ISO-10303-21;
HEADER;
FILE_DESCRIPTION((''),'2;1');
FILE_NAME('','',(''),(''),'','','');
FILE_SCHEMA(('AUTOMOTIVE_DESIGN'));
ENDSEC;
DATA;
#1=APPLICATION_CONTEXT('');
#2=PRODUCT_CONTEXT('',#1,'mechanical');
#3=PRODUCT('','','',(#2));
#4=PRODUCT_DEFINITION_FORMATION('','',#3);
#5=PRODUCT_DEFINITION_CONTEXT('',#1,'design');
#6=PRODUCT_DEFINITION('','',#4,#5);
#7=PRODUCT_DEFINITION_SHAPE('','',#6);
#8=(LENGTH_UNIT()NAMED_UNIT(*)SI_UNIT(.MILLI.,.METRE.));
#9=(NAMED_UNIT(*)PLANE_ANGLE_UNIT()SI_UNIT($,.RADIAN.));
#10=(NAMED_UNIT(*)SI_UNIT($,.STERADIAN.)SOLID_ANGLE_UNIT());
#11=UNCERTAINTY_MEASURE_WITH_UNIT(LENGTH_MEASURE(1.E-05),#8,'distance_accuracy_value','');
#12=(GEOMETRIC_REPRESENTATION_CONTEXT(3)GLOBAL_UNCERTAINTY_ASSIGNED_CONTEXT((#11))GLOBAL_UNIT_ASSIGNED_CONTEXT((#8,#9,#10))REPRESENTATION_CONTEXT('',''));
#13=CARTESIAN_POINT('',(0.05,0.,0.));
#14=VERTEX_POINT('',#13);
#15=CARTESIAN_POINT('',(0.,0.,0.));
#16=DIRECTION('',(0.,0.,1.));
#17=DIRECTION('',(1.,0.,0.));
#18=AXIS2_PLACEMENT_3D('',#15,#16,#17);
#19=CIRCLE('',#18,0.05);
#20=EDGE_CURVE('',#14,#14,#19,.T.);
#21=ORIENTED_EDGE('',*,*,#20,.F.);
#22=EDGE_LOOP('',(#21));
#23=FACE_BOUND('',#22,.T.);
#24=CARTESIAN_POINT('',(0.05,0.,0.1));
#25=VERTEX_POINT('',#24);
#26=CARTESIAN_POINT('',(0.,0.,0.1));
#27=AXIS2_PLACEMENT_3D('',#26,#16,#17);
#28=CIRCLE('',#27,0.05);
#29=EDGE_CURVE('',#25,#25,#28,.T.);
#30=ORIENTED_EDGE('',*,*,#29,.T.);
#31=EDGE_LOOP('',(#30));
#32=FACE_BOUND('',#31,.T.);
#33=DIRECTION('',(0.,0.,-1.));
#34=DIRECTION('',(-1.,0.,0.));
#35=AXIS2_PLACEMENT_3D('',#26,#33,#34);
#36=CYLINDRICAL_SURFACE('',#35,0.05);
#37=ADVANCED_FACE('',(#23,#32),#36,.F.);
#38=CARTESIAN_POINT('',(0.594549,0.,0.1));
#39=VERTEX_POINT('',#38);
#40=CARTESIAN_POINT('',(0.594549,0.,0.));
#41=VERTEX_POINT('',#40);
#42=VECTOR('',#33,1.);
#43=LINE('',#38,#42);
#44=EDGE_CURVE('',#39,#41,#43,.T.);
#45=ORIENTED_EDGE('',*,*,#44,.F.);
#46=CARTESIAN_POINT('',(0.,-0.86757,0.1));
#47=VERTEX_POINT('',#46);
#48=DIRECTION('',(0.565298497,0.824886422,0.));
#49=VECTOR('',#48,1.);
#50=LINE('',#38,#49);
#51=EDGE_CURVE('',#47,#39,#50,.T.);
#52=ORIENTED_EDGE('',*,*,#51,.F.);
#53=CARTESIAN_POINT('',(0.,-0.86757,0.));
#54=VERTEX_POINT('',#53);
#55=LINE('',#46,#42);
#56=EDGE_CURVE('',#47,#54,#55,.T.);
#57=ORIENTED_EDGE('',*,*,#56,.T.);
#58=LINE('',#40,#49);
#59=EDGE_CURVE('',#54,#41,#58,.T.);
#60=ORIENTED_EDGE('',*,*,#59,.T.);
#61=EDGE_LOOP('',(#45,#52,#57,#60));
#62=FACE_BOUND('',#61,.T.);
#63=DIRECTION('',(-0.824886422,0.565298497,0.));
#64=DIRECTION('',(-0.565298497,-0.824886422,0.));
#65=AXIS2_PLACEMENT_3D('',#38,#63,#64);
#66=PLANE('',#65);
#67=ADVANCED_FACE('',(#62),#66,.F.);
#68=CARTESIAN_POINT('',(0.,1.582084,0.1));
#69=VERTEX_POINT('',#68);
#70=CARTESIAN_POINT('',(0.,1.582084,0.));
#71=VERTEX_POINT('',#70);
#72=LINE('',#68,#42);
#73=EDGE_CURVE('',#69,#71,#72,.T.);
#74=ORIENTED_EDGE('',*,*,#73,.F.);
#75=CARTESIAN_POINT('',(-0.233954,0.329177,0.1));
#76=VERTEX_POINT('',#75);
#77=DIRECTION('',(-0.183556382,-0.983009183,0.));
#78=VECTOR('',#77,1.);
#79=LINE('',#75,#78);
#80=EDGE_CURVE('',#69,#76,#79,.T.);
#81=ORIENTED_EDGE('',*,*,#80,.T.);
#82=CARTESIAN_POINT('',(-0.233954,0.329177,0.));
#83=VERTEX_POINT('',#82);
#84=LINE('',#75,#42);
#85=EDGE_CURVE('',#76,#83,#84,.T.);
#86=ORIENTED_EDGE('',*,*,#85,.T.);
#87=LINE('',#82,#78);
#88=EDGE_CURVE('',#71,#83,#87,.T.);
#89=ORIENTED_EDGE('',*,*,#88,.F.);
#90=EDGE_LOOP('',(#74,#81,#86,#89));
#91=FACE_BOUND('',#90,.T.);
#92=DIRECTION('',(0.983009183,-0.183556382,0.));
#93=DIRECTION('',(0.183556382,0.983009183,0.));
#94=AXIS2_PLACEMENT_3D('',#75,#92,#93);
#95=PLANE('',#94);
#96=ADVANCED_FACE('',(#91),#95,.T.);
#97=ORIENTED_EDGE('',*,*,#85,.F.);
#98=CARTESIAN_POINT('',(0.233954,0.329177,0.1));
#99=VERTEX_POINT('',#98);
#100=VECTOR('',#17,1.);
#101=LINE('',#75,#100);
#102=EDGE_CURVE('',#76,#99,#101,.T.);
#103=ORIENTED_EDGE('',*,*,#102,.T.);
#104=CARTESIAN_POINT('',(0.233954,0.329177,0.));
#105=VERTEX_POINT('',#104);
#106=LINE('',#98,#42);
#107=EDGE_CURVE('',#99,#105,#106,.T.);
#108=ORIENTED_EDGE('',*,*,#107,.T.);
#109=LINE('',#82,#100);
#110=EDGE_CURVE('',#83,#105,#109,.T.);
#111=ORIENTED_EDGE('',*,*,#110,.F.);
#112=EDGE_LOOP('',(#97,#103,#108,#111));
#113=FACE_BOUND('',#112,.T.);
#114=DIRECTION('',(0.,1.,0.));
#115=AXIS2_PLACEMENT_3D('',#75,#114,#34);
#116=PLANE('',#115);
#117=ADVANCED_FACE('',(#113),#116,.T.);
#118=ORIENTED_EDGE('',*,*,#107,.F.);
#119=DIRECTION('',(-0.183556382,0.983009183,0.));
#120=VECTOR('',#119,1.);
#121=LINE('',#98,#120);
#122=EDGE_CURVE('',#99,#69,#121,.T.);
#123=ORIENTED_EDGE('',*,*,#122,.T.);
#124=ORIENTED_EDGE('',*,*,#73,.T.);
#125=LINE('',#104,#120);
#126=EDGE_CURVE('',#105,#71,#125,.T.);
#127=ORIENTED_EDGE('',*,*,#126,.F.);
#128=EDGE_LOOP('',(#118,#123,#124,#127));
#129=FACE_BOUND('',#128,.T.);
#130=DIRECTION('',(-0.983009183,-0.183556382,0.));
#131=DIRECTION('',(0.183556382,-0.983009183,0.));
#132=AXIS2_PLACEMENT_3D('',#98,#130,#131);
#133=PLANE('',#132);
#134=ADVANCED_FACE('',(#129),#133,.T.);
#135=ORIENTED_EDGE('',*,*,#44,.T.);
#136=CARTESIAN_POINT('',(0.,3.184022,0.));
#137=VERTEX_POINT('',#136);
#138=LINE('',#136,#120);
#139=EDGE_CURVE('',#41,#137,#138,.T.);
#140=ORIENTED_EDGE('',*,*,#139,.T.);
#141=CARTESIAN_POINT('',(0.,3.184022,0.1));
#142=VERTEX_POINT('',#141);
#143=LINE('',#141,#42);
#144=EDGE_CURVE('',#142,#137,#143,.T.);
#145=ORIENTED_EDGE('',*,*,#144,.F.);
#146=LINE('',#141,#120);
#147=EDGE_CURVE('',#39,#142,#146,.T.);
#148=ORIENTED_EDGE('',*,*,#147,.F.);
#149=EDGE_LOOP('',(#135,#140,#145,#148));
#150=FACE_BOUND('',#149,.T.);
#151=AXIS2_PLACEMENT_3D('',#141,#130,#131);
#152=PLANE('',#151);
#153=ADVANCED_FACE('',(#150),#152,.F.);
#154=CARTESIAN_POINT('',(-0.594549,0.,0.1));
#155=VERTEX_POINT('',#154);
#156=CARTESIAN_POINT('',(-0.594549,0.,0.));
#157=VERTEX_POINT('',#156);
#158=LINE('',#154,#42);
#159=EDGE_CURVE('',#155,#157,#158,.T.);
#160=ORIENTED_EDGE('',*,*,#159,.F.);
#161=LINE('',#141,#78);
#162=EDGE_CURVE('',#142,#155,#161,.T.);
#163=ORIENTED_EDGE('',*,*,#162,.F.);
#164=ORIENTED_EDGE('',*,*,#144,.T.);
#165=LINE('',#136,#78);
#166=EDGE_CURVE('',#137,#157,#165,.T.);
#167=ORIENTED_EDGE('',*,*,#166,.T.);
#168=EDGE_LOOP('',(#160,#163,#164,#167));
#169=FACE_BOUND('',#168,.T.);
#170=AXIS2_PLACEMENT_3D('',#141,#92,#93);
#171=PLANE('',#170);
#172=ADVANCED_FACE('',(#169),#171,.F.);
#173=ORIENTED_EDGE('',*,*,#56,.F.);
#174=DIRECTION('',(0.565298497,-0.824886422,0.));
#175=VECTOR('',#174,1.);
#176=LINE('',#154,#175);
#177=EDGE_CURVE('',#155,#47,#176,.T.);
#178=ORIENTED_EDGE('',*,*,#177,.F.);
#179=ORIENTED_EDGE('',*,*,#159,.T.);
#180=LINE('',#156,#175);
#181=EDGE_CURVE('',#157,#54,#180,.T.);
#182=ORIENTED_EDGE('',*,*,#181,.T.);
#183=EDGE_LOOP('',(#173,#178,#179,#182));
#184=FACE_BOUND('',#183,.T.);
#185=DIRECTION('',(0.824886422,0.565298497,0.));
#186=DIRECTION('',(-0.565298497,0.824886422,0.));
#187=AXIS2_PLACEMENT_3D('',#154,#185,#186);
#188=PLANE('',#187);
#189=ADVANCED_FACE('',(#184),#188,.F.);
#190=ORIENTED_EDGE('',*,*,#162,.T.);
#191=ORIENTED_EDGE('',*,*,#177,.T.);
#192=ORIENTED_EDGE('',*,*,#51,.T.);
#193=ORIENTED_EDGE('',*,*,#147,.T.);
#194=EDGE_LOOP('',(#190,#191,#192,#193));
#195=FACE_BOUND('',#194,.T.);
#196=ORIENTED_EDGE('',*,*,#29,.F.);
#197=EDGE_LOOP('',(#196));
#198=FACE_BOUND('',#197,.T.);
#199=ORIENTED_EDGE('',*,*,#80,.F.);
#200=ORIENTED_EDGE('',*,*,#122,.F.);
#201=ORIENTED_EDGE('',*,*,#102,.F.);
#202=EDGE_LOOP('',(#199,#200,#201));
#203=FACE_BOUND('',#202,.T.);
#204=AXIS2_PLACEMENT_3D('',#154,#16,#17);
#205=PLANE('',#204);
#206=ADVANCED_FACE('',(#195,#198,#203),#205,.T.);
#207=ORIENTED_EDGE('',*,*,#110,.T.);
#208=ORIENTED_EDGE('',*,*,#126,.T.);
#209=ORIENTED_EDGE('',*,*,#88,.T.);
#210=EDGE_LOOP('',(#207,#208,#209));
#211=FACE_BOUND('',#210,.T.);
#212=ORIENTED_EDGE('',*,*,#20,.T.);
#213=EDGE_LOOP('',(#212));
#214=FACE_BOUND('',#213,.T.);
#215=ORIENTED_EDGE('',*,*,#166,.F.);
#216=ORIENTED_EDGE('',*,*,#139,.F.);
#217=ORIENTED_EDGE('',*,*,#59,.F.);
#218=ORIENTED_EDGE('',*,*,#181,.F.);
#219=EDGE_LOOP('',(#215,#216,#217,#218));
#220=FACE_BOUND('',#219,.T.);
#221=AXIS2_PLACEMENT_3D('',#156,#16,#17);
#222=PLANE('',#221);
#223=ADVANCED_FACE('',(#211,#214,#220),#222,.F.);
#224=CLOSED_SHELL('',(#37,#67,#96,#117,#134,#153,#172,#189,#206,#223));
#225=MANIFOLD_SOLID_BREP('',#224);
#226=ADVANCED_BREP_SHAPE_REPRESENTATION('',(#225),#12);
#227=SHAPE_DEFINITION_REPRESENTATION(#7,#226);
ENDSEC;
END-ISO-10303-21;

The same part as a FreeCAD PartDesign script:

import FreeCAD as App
import Part
import Sketcher
from FreeCAD import Vector

doc = App.newDocument("Part")
body = doc.addObject("PartDesign::Body", "Body")

# Sketch on XY plane
sketch1 = body.newObject("Sketcher::SketchObject", "Sketch")
sketch1.AttachmentSupport = (doc.getObject("XY_Plane"), [""])
sketch1.MapMode = "FlatFace"
sketch1.addGeometry([
    Part.LineSegment(Vector(0.594549, 0, 0), Vector(0, 3.184022, 0)),  # 0
    Part.LineSegment(Vector(0, 3.184022, 0), Vector(-0.594549, 0, 0)),  # 1
    Part.LineSegment(Vector(-0.594549, 0, 0), Vector(0, -0.86757, 0)),  # 2
    Part.LineSegment(Vector(0, -0.86757, 0), Vector(0.594549, 0, 0)),  # 3
    Part.Circle(Vector(0, 0, 0), Vector(0, 0, 1), 0.05),  # 4
    Part.LineSegment(Vector(-0.233954, 0.329177, 0), Vector(0, 1.582084, 0)),  # 5
    Part.LineSegment(Vector(0, 1.582084, 0), Vector(0.233954, 0.329177, 0)),  # 6
    Part.LineSegment(Vector(0.233954, 0.329177, 0), Vector(-0.233954, 0.329177, 0)),  # 7
], False)
sketch1.addConstraint([
    Sketcher.Constraint("Coincident", 0, 2, 1, 1),
    Sketcher.Constraint("Coincident", 1, 2, 2, 1),
    Sketcher.Constraint("Coincident", 2, 2, 3, 1),
    Sketcher.Constraint("Coincident", 3, 2, 0, 1),
    Sketcher.Constraint("Coincident", 5, 2, 6, 1),
    Sketcher.Constraint("Coincident", 6, 2, 7, 1),
    Sketcher.Constraint("Coincident", 7, 2, 5, 1),
    Sketcher.Constraint("Horizontal", 7),
    Sketcher.Constraint("Coincident", 4, 3, -1, 1),
    Sketcher.Constraint("Symmetric", 1, 2, 3, 2, -1, 1),
    Sketcher.Constraint("PointOnObject", 0, 2, -2),
    Sketcher.Constraint("PointOnObject", 1, 2, -1),
    Sketcher.Constraint("PointOnObject", 2, 2, -2),
    Sketcher.Constraint("PointOnObject", 5, 2, -2),
    Sketcher.Constraint("Parallel", 1, 5),
    Sketcher.Constraint("Parallel", 0, 6),
    Sketcher.Constraint("Diameter", 4, 0.1),
    Sketcher.Constraint("DistanceX", 7, 2, 7, 1, 0.467908),
    Sketcher.Constraint("DistanceX", 1, 2, 3, 2, 1.189099),
    Sketcher.Constraint("DistanceY", 2, 2, -1, 1, 0.86757),
    Sketcher.Constraint("DistanceY", 2, 2, 0, 2, 4.051592),
    Sketcher.Constraint("DistanceY", 5, 2, 0, 2, 1.601938),
])
pad1 = body.newObject("PartDesign::Pad", "Pad")
pad1.Profile = sketch1
pad1.Length = 0.1

doc.recompute()
